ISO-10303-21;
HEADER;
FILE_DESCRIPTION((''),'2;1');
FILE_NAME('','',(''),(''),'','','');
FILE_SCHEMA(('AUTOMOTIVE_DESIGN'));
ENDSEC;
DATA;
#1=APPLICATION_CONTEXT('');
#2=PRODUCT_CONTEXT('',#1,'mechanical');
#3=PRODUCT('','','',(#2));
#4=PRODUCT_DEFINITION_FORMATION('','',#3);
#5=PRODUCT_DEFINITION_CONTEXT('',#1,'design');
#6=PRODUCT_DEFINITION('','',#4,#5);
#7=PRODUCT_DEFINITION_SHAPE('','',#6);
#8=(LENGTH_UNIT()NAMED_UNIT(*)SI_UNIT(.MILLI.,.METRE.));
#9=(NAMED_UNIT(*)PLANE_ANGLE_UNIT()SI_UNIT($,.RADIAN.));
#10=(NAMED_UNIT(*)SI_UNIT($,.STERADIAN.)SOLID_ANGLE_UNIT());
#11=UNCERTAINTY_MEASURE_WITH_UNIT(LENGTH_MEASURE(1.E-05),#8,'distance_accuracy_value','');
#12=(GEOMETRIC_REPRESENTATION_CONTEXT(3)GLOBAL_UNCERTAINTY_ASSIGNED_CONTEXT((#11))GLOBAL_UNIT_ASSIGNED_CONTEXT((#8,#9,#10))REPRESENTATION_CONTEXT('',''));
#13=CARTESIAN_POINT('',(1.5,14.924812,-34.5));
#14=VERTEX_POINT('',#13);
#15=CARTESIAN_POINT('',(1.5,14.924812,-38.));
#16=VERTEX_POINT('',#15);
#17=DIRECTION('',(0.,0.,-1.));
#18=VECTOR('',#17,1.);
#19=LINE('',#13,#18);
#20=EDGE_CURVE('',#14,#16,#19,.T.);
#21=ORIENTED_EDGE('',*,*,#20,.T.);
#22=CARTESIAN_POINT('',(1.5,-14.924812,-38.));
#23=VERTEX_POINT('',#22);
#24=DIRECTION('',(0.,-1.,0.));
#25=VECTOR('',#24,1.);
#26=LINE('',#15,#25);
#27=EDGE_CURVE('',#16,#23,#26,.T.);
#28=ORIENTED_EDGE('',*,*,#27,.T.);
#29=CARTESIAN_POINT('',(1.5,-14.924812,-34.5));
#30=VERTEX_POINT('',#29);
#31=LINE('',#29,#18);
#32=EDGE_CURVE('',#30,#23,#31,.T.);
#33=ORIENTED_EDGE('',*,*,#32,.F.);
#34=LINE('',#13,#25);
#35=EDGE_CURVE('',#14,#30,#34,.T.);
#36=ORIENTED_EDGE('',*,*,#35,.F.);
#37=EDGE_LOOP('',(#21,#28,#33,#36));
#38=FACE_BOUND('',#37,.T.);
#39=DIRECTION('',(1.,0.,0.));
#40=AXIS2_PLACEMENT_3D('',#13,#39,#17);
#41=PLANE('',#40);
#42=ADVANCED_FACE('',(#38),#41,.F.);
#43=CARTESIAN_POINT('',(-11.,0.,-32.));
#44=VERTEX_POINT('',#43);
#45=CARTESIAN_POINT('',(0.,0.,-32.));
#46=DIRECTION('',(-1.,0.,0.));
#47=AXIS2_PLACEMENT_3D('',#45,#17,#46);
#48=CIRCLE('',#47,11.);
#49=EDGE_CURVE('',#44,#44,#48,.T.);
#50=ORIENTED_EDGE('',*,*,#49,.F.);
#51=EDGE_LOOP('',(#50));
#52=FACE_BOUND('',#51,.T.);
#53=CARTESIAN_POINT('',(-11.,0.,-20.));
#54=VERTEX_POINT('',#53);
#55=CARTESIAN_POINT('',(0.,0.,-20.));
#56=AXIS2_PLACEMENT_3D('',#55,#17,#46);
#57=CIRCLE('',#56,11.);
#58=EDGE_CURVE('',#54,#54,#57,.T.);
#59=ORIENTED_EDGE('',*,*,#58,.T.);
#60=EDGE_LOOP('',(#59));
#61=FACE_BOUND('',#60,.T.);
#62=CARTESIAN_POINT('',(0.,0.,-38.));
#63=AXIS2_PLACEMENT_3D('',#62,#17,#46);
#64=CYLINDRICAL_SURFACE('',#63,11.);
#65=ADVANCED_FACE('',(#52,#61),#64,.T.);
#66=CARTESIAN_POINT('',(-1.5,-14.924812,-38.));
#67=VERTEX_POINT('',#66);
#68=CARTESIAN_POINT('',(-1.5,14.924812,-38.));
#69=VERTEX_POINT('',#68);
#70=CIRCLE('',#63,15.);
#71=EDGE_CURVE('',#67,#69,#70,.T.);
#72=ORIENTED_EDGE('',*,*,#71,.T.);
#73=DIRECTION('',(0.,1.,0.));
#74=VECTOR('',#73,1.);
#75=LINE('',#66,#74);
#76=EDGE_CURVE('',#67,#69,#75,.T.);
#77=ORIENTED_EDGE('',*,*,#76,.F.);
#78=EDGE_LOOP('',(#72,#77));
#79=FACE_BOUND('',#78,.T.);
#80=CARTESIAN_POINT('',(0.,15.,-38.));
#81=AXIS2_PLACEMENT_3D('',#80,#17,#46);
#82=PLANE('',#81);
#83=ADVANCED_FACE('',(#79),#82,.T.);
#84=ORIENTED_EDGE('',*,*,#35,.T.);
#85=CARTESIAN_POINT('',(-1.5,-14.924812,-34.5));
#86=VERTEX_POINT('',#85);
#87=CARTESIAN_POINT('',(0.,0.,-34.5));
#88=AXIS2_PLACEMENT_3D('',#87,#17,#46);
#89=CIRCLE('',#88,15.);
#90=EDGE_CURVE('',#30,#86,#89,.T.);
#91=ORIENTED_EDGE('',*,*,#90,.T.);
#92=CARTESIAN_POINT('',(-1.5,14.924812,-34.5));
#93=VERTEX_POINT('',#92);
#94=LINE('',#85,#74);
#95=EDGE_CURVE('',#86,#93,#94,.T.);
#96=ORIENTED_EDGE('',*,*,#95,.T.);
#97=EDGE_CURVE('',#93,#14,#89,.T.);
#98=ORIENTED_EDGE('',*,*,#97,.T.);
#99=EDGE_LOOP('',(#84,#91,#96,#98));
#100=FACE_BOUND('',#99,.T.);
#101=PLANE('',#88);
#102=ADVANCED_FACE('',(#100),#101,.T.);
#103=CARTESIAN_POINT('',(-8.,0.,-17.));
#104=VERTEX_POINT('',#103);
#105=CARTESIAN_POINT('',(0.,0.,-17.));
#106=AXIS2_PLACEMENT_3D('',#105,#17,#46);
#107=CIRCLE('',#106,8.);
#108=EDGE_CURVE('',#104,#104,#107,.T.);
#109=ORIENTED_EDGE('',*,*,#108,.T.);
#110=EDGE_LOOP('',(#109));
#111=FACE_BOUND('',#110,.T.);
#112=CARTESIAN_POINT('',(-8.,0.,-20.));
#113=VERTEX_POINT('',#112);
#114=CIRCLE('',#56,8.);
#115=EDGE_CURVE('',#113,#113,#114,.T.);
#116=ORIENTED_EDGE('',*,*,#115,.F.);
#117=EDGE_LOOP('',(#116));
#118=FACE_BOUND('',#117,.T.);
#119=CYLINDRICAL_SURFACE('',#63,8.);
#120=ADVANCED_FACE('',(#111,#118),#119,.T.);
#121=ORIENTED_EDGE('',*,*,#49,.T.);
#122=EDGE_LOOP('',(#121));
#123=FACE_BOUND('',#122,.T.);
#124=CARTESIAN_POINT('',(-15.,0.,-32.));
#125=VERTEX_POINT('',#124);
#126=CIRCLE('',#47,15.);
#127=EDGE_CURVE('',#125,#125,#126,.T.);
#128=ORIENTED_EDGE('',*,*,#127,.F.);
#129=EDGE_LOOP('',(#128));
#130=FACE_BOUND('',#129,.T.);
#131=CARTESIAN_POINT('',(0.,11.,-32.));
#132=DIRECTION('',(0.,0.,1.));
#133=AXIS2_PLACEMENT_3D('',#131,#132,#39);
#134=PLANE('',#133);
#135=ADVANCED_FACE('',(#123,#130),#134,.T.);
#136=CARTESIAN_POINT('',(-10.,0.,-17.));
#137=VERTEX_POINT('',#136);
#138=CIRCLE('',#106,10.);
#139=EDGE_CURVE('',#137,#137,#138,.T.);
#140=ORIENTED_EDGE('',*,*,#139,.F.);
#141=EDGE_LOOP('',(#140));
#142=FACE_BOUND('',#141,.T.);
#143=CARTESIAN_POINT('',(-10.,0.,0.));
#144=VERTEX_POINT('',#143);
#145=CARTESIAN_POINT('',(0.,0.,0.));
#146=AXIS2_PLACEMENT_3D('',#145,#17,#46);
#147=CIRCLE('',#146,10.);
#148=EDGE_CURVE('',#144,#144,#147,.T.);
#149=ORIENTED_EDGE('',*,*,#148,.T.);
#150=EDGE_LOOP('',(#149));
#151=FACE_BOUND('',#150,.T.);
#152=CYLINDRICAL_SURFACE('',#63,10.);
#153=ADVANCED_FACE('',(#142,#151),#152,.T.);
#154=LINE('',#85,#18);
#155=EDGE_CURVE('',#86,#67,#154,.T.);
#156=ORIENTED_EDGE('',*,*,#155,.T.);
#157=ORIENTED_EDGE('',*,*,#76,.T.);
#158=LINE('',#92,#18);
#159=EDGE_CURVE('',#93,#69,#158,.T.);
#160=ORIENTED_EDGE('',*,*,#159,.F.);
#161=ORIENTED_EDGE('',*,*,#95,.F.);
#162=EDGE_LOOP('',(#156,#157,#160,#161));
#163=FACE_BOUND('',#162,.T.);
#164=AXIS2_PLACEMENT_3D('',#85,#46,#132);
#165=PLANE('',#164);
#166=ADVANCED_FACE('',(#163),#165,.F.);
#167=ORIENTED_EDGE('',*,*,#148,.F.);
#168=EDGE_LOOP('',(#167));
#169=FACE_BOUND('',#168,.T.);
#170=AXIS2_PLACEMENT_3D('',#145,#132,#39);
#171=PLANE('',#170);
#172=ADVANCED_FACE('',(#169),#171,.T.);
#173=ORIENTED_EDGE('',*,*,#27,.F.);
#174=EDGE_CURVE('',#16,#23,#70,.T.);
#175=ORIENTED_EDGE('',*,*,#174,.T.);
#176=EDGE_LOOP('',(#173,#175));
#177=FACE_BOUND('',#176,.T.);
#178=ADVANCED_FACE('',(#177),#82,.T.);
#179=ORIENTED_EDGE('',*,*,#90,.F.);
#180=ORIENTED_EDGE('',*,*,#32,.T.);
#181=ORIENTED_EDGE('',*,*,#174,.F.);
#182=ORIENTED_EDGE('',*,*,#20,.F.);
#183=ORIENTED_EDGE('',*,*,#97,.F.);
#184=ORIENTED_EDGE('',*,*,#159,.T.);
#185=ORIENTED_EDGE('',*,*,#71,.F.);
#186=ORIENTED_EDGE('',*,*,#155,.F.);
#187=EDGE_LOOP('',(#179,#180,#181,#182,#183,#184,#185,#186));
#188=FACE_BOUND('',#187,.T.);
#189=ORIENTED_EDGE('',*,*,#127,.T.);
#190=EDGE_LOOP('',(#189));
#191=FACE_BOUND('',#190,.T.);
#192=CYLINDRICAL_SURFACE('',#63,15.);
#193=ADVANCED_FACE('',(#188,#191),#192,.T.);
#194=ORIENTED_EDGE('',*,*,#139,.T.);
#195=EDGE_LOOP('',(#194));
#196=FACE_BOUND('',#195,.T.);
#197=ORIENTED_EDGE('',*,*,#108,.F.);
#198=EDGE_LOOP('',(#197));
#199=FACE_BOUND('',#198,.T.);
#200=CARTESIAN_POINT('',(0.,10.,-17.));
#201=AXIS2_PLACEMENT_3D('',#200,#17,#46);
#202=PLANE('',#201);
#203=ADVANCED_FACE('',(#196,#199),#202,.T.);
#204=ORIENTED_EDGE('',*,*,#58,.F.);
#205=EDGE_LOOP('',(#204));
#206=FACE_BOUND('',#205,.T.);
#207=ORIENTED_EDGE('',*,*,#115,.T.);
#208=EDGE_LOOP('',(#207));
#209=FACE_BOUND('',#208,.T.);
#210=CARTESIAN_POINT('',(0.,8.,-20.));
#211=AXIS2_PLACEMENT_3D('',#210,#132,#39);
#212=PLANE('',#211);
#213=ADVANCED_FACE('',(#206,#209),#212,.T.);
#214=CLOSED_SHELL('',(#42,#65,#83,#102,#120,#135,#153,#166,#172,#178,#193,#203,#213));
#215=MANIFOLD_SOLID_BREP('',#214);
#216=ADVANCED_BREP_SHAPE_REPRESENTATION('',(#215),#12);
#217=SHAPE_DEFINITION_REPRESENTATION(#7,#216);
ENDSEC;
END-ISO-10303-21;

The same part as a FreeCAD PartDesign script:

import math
import FreeCAD as App
import Part
import Sketcher

V = App.Vector
Q = App.Units.Quantity


def add_polygon(sketch, points):
    """Adds a closed chain of lines whose ends are joined by coincident constraints."""
    first, n = sketch.GeometryCount, len(points)
    for a, b in zip(points, points[1:] + points[:1]):
        sketch.addGeometry(Part.LineSegment(App.Vector(*a, 0), App.Vector(*b, 0)), False)
    for i in range(n):
        sketch.addConstraint(Sketcher.Constraint("Coincident", first + i, 2, first + (i + 1) % n, 1))

doc = App.newDocument("Part")
body = doc.addObject("PartDesign::Body", "Body")

# Sketch on YZ plane
sketch1 = body.newObject("Sketcher::SketchObject", "Sketch")
sketch1.AttachmentSupport = (doc.getObject("YZ_Plane"), [""])
sketch1.MapMode = "FlatFace"
add_polygon(sketch1, [(10, 0), (0, 0), (0, -38), (15, -38), (15, -32), (11, -32), (11, -20), (8, -20), (8, -17), (10, -17)])  # lines 0-9
sketch1.addConstraint([
    Sketcher.Constraint("Horizontal", 0),
    Sketcher.Constraint("Vertical", 1),
    Sketcher.Constraint("Horizontal", 2),
    Sketcher.Constraint("Vertical", 3),
    Sketcher.Constraint("Horizontal", 4),
    Sketcher.Constraint("Vertical", 5),
    Sketcher.Constraint("Horizontal", 6),
    Sketcher.Constraint("Vertical", 7),
    Sketcher.Constraint("Horizontal", 8),
    Sketcher.Constraint("Vertical", 9),
    Sketcher.Constraint("Coincident", 0, 2, -1, 1),
    Sketcher.Constraint("Equal", 6, 7),
    Sketcher.Constraint("DistanceX", 0, 2, 0, 1, Q("10 mm")),
    Sketcher.Constraint("DistanceX", 2, 1, 2, 2, Q("15 mm")),
    Sketcher.Constraint("DistanceX", 4, 2, 4, 1, Q("4 mm")),
    Sketcher.Constraint("DistanceX", 6, 2, 6, 1, Q("3 mm")),
    Sketcher.Constraint("DistanceY", 1, 2, 1, 1, Q("38 mm")),
    Sketcher.Constraint("DistanceY", 3, 1, 3, 2, Q("6 mm")),
    Sketcher.Constraint("DistanceY", 5, 1, 5, 2, Q("12 mm")),
])
revolution = body.newObject("PartDesign::Revolution", "Revolution")
revolution.Profile = sketch1
revolution.ReferenceAxis = (sketch1, ["V_Axis"])
revolution.Angle = 360

# Sketch on XY plane
sketch2 = body.newObject("Sketcher::SketchObject", "Sketch001")
sketch2.AttachmentSupport = (doc.getObject("XY_Plane"), [""])
sketch2.MapMode = "FlatFace"
sketch2.AttachmentOffset = App.Placement(V(0, 0, -38), App.Rotation())
sketch2.addGeometry([
    Part.LineSegment(V(1.5, 14.9, 0), V(1.5, -14.9, 0)),
    Part.ArcOfCircle(Part.Circle(V(0, 0, 0), V(0, 0, 1), 15), math.radians(-95.74), math.radians(-84.26)),
    Part.LineSegment(V(-1.5, -14.9, 0), V(-1.5, 14.9, 0)),
    Part.ArcOfCircle(Part.Circle(V(0, 0, 0), V(0, 0, 1), 15), math.radians(84.26), math.radians(95.74)),
], False)
sketch2.addConstraint([
    Sketcher.Constraint("Coincident", 0, 2, 1, 2),
    Sketcher.Constraint("Coincident", 1, 1, 2, 1),
    Sketcher.Constraint("Coincident", 2, 2, 3, 2),
    Sketcher.Constraint("Coincident", 3, 1, 0, 1),
    Sketcher.Constraint("Vertical", 0),
    Sketcher.Constraint("Vertical", 2),
    Sketcher.Constraint("Coincident", 1, 3, -1, 1),
    Sketcher.Constraint("Coincident", 3, 3, -1, 1),
    Sketcher.Constraint("Equal", 1, 3),
    Sketcher.Constraint("Horizontal", 0, 2, 1, 1),
    Sketcher.Constraint("Radius", 1, Q("15 mm")),
    Sketcher.Constraint("DistanceX", 1, 1, 0, 2, Q("3 mm")),
])
pocket1 = body.newObject("PartDesign::Pocket", "Pocket")
pocket1.Profile = sketch2
pocket1.Length = 3.5
pocket1.Reversed = True

doc.recompute()
